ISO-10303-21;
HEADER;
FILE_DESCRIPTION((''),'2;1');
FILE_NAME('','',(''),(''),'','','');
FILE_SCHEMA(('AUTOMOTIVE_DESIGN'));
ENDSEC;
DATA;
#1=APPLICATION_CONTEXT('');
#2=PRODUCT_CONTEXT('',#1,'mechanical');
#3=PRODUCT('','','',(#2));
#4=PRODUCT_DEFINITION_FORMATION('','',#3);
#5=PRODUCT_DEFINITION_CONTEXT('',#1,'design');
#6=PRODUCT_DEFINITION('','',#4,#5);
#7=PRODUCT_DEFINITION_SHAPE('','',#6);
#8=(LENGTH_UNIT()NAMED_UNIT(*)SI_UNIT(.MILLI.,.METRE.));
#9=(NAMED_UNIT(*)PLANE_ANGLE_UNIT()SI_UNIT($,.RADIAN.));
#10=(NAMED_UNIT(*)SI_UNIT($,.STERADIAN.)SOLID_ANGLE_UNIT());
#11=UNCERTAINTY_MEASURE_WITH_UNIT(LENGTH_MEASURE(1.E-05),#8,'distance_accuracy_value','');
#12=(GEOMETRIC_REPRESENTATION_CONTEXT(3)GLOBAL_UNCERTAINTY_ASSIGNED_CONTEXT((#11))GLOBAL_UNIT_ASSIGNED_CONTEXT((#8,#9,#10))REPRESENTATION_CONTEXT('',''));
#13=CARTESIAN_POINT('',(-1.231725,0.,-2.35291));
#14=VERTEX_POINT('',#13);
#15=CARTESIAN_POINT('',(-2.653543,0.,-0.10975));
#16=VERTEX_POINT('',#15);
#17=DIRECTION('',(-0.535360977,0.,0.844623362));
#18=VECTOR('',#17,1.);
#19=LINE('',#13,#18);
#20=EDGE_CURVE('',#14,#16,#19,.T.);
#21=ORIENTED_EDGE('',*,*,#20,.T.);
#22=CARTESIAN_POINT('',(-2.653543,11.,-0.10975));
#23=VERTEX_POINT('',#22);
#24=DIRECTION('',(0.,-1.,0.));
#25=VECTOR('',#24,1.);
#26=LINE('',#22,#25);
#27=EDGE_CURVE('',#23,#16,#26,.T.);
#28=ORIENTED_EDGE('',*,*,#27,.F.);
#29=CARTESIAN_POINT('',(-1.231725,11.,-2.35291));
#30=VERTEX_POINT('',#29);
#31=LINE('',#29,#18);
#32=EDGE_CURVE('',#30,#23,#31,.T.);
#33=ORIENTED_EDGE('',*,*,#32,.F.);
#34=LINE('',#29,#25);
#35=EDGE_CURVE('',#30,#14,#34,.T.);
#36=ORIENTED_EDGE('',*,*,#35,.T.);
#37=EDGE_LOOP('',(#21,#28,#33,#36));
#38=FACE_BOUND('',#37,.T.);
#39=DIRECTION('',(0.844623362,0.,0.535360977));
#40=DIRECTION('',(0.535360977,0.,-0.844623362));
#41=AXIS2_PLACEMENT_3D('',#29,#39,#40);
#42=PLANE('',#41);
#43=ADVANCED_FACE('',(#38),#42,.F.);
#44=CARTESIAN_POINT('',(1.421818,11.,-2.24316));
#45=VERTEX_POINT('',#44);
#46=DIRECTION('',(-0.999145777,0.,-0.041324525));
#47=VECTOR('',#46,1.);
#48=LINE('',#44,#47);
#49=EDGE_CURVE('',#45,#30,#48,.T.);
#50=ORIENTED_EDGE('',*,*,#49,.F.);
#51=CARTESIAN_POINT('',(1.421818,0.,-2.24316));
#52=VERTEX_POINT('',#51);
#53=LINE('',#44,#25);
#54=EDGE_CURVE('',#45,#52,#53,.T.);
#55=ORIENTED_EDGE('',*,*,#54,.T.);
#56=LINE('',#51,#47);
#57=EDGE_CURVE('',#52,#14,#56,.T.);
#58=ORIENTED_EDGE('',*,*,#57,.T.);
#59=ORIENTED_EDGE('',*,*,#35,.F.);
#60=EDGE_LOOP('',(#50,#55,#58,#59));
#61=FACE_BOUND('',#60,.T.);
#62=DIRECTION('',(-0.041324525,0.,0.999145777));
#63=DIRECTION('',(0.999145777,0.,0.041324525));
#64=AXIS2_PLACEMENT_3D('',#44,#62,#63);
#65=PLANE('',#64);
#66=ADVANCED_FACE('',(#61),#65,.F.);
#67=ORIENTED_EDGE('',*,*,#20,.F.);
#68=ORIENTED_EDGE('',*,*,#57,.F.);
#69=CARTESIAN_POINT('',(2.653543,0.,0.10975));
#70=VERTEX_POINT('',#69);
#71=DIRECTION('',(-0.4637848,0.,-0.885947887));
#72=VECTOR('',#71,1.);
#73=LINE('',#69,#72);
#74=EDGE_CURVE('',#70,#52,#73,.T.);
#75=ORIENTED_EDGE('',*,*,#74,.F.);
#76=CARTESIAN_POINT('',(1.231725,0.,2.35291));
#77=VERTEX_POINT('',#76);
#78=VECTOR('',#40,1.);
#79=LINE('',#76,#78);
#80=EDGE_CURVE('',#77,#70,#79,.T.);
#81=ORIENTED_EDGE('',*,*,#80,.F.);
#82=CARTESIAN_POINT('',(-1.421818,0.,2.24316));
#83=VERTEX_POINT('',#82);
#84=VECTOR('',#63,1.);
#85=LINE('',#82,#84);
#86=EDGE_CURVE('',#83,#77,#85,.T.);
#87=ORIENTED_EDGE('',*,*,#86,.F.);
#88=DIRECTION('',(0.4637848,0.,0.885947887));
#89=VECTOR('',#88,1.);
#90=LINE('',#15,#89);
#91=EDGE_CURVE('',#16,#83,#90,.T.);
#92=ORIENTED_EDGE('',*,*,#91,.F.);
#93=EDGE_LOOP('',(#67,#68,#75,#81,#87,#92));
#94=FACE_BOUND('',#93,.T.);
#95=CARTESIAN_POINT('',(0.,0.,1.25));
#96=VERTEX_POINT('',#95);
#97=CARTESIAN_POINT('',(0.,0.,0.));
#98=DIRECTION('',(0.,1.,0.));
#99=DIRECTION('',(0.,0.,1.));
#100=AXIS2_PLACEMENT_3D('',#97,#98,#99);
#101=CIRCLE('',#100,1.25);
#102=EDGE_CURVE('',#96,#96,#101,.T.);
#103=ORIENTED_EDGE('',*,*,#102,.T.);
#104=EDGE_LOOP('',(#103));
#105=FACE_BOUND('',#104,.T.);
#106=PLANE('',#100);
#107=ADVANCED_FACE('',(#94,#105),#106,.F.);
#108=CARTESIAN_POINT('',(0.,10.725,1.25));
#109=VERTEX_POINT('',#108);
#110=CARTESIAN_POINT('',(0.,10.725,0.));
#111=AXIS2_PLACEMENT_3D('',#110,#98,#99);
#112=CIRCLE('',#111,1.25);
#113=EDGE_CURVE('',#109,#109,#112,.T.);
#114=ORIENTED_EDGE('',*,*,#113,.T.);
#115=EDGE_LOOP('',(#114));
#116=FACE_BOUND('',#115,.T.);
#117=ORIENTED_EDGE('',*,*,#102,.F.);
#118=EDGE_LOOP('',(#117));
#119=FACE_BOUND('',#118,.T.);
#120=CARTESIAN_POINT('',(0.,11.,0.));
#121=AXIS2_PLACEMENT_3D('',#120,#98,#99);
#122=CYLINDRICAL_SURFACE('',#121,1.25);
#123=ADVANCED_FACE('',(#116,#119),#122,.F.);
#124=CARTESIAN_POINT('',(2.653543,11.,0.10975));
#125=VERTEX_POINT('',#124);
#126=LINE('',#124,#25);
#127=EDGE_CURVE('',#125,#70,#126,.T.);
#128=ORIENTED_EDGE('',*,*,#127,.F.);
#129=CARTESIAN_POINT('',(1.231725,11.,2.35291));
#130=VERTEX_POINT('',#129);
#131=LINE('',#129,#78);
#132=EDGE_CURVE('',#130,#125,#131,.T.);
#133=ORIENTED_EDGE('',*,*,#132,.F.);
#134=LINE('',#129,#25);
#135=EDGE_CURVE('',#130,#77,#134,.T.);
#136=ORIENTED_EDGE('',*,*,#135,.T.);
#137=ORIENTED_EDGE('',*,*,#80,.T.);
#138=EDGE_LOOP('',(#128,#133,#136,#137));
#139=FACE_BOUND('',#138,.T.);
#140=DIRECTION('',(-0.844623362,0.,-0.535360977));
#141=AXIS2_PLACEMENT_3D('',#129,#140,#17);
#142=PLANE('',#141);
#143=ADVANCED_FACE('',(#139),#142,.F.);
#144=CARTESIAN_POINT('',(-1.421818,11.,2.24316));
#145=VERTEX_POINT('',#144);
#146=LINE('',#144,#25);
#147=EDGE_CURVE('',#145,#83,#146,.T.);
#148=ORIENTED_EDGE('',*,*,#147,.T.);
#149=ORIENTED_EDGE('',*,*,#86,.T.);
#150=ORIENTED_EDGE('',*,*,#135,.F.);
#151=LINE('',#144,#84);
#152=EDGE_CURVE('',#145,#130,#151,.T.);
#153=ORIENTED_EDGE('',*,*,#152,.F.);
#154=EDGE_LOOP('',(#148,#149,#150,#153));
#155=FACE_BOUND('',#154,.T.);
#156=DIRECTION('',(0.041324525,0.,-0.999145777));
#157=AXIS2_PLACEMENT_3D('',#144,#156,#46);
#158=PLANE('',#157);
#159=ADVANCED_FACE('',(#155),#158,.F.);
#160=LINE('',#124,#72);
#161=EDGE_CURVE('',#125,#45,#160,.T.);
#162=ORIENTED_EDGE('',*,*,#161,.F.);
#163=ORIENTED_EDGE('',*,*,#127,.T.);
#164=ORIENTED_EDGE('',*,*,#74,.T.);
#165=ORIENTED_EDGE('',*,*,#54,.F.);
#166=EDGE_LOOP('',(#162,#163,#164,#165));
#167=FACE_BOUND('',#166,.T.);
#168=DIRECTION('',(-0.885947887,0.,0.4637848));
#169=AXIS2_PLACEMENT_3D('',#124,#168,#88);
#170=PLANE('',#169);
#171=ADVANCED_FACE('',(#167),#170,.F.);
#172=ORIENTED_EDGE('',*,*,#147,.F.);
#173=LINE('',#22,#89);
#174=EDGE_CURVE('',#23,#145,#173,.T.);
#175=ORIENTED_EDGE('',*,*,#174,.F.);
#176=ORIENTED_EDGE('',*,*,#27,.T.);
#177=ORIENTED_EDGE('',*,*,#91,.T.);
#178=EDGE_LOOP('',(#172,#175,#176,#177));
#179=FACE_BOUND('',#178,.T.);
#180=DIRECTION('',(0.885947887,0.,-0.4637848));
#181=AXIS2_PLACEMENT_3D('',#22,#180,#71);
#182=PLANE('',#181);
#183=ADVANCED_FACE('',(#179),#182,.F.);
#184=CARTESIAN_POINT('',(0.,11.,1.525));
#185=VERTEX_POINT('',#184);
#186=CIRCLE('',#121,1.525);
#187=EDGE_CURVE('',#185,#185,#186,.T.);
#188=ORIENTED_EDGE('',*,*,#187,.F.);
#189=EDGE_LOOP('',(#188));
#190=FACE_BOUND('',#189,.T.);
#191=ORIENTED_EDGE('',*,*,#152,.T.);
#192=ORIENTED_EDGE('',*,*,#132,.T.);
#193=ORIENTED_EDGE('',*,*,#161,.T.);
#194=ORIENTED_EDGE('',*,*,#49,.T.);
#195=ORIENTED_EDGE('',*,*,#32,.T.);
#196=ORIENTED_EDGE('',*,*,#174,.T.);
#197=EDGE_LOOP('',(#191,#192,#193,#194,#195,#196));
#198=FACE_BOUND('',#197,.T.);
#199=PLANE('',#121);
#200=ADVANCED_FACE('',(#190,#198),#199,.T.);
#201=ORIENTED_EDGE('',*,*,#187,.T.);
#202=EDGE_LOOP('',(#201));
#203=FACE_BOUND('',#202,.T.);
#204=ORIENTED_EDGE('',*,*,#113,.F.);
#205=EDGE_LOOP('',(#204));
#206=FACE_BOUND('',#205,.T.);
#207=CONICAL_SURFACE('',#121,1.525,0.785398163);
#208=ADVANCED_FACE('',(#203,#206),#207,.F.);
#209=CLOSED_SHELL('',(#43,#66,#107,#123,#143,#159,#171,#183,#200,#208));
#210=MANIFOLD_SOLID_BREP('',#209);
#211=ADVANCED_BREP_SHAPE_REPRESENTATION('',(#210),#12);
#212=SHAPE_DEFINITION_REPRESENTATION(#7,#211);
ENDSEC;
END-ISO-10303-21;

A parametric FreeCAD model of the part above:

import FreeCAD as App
import Part
import Sketcher


def add_polygon(sketch, points):
    """Adds a closed chain of lines whose ends are joined by coincident constraints."""
    first, n = sketch.GeometryCount, len(points)
    for a, b in zip(points, points[1:] + points[:1]):
        sketch.addGeometry(Part.LineSegment(App.Vector(*a, 0), App.Vector(*b, 0)), False)
    for i in range(n):
        sketch.addConstraint(Sketcher.Constraint("Coincident", first + i, 2, first + (i + 1) % n, 1))

doc = App.newDocument("Part")
body = doc.addObject("PartDesign::Body", "Body")

sketch1 = body.newObject("Sketcher::SketchObject", "Sketch")
sketch1.AttachmentSupport = (doc.getObject("XZ_Plane"), [""])
sketch1.MapMode = "FlatFace"
add_polygon(sketch1, [(1.231725, 2.35291), (2.653543, 0.10975), (1.421818, -2.24316), (-1.231725, -2.35291), (-2.653543, -0.10975), (-1.421818, 2.24316)])
sketch1.addGeometry(Part.Circle(App.Vector(0, 0, 0), App.Vector(0, 0, 1), 1.1), False)
sketch1.addConstraint([
    Sketcher.Constraint("Coincident", 6, 3, -1, 1),
    Sketcher.Constraint("Symmetric", 0, 2, 3, 2, -1, 1),
    Sketcher.Constraint("Symmetric", 1, 2, 4, 2, -1, 1),
    Sketcher.Constraint("Symmetric", 2, 2, 5, 2, -1, 1),
    Sketcher.Constraint("Equal", 0, 1),
    Sketcher.Constraint("Equal", 1, 2),
    Sketcher.Constraint("Diameter", 6, 2.2),
    Sketcher.Constraint("DistanceY", 3, 2, 0, 2, 0.2195),
    Sketcher.Constraint("Distance", 0, 2.655811),
    Sketcher.Constraint("DistanceY", 1, 2, -1, 1, 2.24316),
    Sketcher.Constraint("DistanceY", 2, 2, -1, 1, 2.35291),
])
pad1 = body.newObject("PartDesign::Pad", "Pad")
pad1.Profile = sketch1
pad1.Length = 11
pad1.Reversed = True

sketch2 = body.newObject("Sketcher::SketchObject", "Sketch001")
sketch2.AttachmentSupport = (doc.getObject("XZ_Plane"), [""])
sketch2.MapMode = "FlatFace"
sketch2.AttachmentOffset = App.Placement(App.Vector(0, 0, -11), App.Rotation())
sketch2.addGeometry(Part.Circle(App.Vector(0, 0, 0), App.Vector(0, 0, 1), 1.25), False)
sketch2.addConstraint([
    Sketcher.Constraint("Coincident", 0, 3, -1, 1),
    Sketcher.Constraint("Diameter", 0, 2.5),
])
doc.recompute()
hole = body.newObject("PartDesign::Hole", "Hole")
hole.Profile = sketch2
hole.ThreadType = "None"
hole.Diameter = 2.5
hole.DepthType = "ThroughAll"
hole.HoleCutType = "Countersink"
hole.HoleCutDiameter = 3.05
hole.HoleCutCountersinkAngle = 90
hole.Reversed = True

doc.recompute()
